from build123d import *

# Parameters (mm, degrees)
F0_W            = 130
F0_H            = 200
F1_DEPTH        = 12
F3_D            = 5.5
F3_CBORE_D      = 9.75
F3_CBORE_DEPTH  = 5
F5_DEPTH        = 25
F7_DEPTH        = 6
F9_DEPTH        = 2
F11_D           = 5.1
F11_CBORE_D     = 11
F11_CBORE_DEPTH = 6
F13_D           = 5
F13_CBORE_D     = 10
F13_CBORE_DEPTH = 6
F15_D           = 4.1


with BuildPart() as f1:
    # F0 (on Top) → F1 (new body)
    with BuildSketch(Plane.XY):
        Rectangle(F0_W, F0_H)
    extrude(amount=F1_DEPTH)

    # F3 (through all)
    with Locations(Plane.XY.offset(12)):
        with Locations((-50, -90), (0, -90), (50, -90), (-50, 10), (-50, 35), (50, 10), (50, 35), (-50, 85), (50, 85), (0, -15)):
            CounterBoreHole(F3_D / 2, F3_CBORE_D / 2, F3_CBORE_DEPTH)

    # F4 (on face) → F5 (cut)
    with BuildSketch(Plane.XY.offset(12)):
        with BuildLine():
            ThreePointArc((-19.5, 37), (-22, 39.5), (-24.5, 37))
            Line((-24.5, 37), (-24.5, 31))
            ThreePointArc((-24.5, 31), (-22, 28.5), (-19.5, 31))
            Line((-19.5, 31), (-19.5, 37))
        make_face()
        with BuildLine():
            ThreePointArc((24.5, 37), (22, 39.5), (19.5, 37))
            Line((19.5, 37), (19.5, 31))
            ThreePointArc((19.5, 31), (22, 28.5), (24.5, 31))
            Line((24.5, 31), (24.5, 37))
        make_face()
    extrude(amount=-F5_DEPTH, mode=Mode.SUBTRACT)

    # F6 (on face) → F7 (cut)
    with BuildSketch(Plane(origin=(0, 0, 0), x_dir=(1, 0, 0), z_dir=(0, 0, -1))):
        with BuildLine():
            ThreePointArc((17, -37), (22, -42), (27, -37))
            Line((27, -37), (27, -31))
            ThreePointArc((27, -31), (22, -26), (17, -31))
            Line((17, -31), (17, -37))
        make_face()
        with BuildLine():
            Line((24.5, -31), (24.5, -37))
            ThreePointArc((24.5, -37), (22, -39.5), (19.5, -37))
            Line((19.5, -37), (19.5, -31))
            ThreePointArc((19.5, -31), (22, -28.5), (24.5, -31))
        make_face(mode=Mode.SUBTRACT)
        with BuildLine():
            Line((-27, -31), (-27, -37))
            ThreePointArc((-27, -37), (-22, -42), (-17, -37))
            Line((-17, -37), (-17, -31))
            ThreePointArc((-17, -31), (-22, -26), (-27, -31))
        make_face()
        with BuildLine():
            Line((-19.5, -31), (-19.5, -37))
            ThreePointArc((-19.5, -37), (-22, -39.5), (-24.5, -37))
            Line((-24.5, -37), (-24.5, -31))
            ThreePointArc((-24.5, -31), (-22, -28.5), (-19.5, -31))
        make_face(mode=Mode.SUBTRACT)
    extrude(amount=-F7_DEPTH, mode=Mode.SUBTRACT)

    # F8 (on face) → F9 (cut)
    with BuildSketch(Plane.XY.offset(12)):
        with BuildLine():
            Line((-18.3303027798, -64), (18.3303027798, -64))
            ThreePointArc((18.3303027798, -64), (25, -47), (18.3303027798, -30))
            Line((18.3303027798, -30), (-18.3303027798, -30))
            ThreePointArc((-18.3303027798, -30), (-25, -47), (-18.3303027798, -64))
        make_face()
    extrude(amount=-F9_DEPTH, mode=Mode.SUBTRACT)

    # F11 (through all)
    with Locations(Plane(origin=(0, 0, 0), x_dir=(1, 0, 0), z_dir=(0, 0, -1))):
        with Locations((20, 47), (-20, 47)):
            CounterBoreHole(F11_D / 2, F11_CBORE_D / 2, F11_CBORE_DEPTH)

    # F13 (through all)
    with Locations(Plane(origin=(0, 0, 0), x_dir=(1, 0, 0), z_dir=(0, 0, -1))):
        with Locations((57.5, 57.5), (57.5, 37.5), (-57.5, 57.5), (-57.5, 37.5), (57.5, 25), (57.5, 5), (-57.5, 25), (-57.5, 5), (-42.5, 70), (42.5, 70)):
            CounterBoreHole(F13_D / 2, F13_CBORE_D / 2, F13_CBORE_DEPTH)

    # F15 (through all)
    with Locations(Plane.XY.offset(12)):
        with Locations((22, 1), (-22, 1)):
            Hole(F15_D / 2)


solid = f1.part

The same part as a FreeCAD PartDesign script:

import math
import FreeCAD as App
import Part
import Sketcher


def add_polygon(sketch, points):
    """Adds a closed chain of lines whose ends are joined by coincident constraints."""
    first, n = sketch.GeometryCount, len(points)
    for a, b in zip(points, points[1:] + points[:1]):
        sketch.addGeometry(Part.LineSegment(App.Vector(*a, 0), App.Vector(*b, 0)), False)
    for i in range(n):
        sketch.addConstraint(Sketcher.Constraint("Coincident", first + i, 2, first + (i + 1) % n, 1))

doc = App.newDocument("Part")
body = doc.addObject("PartDesign::Body", "Body")

# Sketch on XY plane
sketch1 = doc.addObject("Sketcher::SketchObject", "Sketch")
body.addObject(sketch1)
sketch1.AttachmentSupport = (doc.XY_Plane, [""])
sketch1.MapMode = "FlatFace"
add_polygon(sketch1, [(-65, 100), (-65, -100), (65, -100), (65, 100)])  # lines 0-3
sketch1.addConstraint([
    Sketcher.Constraint("Vertical", 0),
    Sketcher.Constraint("Horizontal", 1),
    Sketcher.Constraint("Vertical", 2),
    Sketcher.Constraint("Horizontal", 3),
    Sketcher.Constraint("Symmetric", 0, 2, 2, 2, -1, 1),
    Sketcher.Constraint("DistanceX", 1, 1, 1, 2, 130.0),
    Sketcher.Constraint("DistanceY", 0, 2, 0, 1, 200.0),
])
pad1 = doc.addObject("PartDesign::Pad", "Pad")
body.addObject(pad1)
pad1.Profile = sketch1
pad1.Length = 12

# Sketch on XY plane
sketch2 = doc.addObject("Sketcher::SketchObject", "Sketch001")
body.addObject(sketch2)
sketch2.AttachmentSupport = (doc.XY_Plane, [""])
sketch2.MapMode = "FlatFace"
sketch2.AttachmentOffset = App.Placement(App.Vector(0, 0, 12), App.Rotation())
sketch2.addGeometry([
    Part.Circle(App.Vector(-50, -90, 0), App.Vector(0, 0, 1), 2.8),  # 0
    Part.Circle(App.Vector(0, -90, 0), App.Vector(0, 0, 1), 2.8),  # 1
    Part.Circle(App.Vector(50, -90, 0), App.Vector(0, 0, 1), 2.8),  # 2
    Part.Circle(App.Vector(-50, 10, 0), App.Vector(0, 0, 1), 2.8),  # 3
    Part.Circle(App.Vector(-50, 35, 0), App.Vector(0, 0, 1), 2.8),  # 4
    Part.Circle(App.Vector(50, 10, 0), App.Vector(0, 0, 1), 2.8),  # 5
    Part.Circle(App.Vector(50, 35, 0), App.Vector(0, 0, 1), 2.8),  # 6
    Part.Circle(App.Vector(-50, 85, 0), App.Vector(0, 0, 1), 2.8),  # 7
    Part.Circle(App.Vector(50, 85, 0), App.Vector(0, 0, 1), 2.8),  # 8
    Part.Circle(App.Vector(0, -15, 0), App.Vector(0, 0, 1), 2.8),  # 9
], False)
sketch2.addConstraint([
    Sketcher.Constraint("Equal", 0, 1),
    Sketcher.Constraint("Equal", 1, 2),
    Sketcher.Constraint("Equal", 2, 3),
    Sketcher.Constraint("Equal", 3, 4),
    Sketcher.Constraint("Equal", 4, 5),
    Sketcher.Constraint("Equal", 5, 6),
    Sketcher.Constraint("Equal", 6, 7),
    Sketcher.Constraint("Equal", 7, 8),
    Sketcher.Constraint("Equal", 8, 9),
    Sketcher.Constraint("Symmetric", 0, 3, 2, 3, -2),
    Sketcher.Constraint("Symmetric", 3, 3, 5, 3, -2),
    Sketcher.Constraint("Symmetric", 4, 3, 6, 3, -2),
    Sketcher.Constraint("Symmetric", 7, 3, 8, 3, -2),
    Sketcher.Constraint("PointOnObject", 1, 3, -2),
    Sketcher.Constraint("PointOnObject", 9, 3, -2),
    Sketcher.Constraint("Horizontal", 0, 3, 1, 3),
    Sketcher.Constraint("Vertical", 0, 3, 3, 3),
    Sketcher.Constraint("Vertical", 3, 3, 4, 3),
    Sketcher.Constraint("Vertical", 4, 3, 7, 3),
    Sketcher.Constraint("Diameter", 0, 5.5),
    Sketcher.Constraint("DistanceX", 0, 3, -1, 1, 50.0),
    Sketcher.Constraint("DistanceY", 0, 3, -1, 1, 90.0),
    Sketcher.Constraint("DistanceY", -1, 1, 3, 3, 10.0),
    Sketcher.Constraint("DistanceY", -1, 1, 4, 3, 35.0),
    Sketcher.Constraint("DistanceY", -1, 1, 7, 3, 85.0),
    Sketcher.Constraint("DistanceY", 9, 3, -1, 1, 15.0),
])
doc.recompute()
hole = doc.addObject("PartDesign::Hole", "Hole")
body.addObject(hole)
hole.Profile = sketch2
hole.ThreadType = "None"
hole.Diameter = 5.5
hole.DepthType = "ThroughAll"
hole.HoleCutType = "Counterbore"
hole.HoleCutDiameter = 9.75
hole.HoleCutDepth = 5

# Sketch on XY plane
sketch3 = doc.addObject("Sketcher::SketchObject", "Sketch002")
body.addObject(sketch3)
sketch3.AttachmentSupport = (doc.XY_Plane, [""])
sketch3.MapMode = "FlatFace"
sketch3.AttachmentOffset = App.Placement(App.Vector(0, 0, 12), App.Rotation())
sketch3.addGeometry([
    Part.ArcOfCircle(Part.Circle(App.Vector(-22, 37, 0), App.Vector(0, 0, 1), 2.5), math.radians(0), math.radians(180)),  # 0
    Part.LineSegment(App.Vector(-24.5, 37, 0), App.Vector(-24.5, 31, 0)),  # 1
    Part.ArcOfCircle(Part.Circle(App.Vector(-22, 31, 0), App.Vector(0, 0, 1), 2.5), math.radians(180), math.radians(360)),  # 2
    Part.LineSegment(App.Vector(-19.5, 31, 0), App.Vector(-19.5, 37, 0)),  # 3
    Part.ArcOfCircle(Part.Circle(App.Vector(22, 37, 0), App.Vector(0, 0, 1), 2.5), math.radians(0), math.radians(180)),  # 4
    Part.LineSegment(App.Vector(19.5, 37, 0), App.Vector(19.5, 31, 0)),  # 5
    Part.ArcOfCircle(Part.Circle(App.Vector(22, 31, 0), App.Vector(0, 0, 1), 2.5), math.radians(180), math.radians(360)),  # 6
    Part.LineSegment(App.Vector(24.5, 31, 0), App.Vector(24.5, 37, 0)),  # 7
], False)
sketch3.addConstraint([
    Sketcher.Constraint("Tangent", 0, 2, 1, 1),
    Sketcher.Constraint("Tangent", 1, 2, 2, 1),
    Sketcher.Constraint("Tangent", 2, 2, 3, 1),
    Sketcher.Constraint("Tangent", 3, 2, 0, 1),
    Sketcher.Constraint("Tangent", 4, 2, 5, 1),
    Sketcher.Constraint("Tangent", 5, 2, 6, 1),
    Sketcher.Constraint("Tangent", 6, 2, 7, 1),
    Sketcher.Constraint("Tangent", 7, 2, 4, 1),
    Sketcher.Constraint("Vertical", 1),
    Sketcher.Constraint("Vertical", 3),
    Sketcher.Constraint("Vertical", 5),
    Sketcher.Constraint("Vertical", 7),
    Sketcher.Constraint("Equal", 2, 4),
    Sketcher.Constraint("Symmetric", 0, 3, 4, 3, -2),
    Sketcher.Constraint("Horizontal", 2, 3, 6, 3),
    Sketcher.Constraint("Radius", 0, 2.5),
    Sketcher.Constraint("DistanceY", 1, 2, 1, 1, 6.0),
    Sketcher.Constraint("DistanceX", 0, 3, -1, 1, 22.0),
    Sketcher.Constraint("DistanceY", -1, 1, 0, 3, 37.0),
])
pocket1 = doc.addObject("PartDesign::Pocket", "Pocket")
body.addObject(pocket1)
pocket1.Profile = sketch3
pocket1.Length = 25

# Sketch on XY plane
sketch4 = doc.addObject("Sketcher::SketchObject", "Sketch003")
body.addObject(sketch4)
sketch4.AttachmentSupport = (doc.XY_Plane, [""])
sketch4.MapMode = "FlatFace"
sketch4.addGeometry([
    Part.ArcOfCircle(Part.Circle(App.Vector(22, 37, 0), App.Vector(0, 0, 1), 5), math.radians(0), math.radians(180)),  # 0
    Part.LineSegment(App.Vector(27, 37, 0), App.Vector(27, 31, 0)),  # 1
    Part.ArcOfCircle(Part.Circle(App.Vector(22, 31, 0), App.Vector(0, 0, 1), 5), math.radians(180), math.radians(360)),  # 2
    Part.LineSegment(App.Vector(17, 31, 0), App.Vector(17, 37, 0)),  # 3
    Part.ArcOfCircle(Part.Circle(App.Vector(22, 31, 0), App.Vector(0, 0, 1), 2.5), math.radians(180), math.radians(360)),  # 4
    Part.LineSegment(App.Vector(24.5, 31, 0), App.Vector(24.5, 37, 0)),  # 5
    Part.ArcOfCircle(Part.Circle(App.Vector(22, 37, 0), App.Vector(0, 0, 1), 2.5), math.radians(0), math.radians(180)),  # 6
    Part.LineSegment(App.Vector(19.5, 37, 0), App.Vector(19.5, 31, 0)),  # 7
    Part.LineSegment(App.Vector(-27, 31, 0), App.Vector(-27, 37, 0)),  # 8
    Part.ArcOfCircle(Part.Circle(App.Vector(-22, 37, 0), App.Vector(0, 0, 1), 5), math.radians(0), math.radians(180)),  # 9
    Part.LineSegment(App.Vector(-17, 37, 0), App.Vector(-17, 31, 0)),  # 10
    Part.ArcOfCircle(Part.Circle(App.Vector(-22, 31, 0), App.Vector(0, 0, 1), 5), math.radians(180), math.radians(360)),  # 11
    Part.ArcOfCircle(Part.Circle(App.Vector(-22, 31, 0), App.Vector(0, 0, 1), 2.5), math.radians(180), math.radians(360)),  # 12
    Part.LineSegment(App.Vector(-19.5, 31, 0), App.Vector(-19.5, 37, 0)),  # 13
    Part.ArcOfCircle(Part.Circle(App.Vector(-22, 37, 0), App.Vector(0, 0, 1), 2.5), math.radians(0), math.radians(180)),  # 14
    Part.LineSegment(App.Vector(-24.5, 37, 0), App.Vector(-24.5, 31, 0)),  # 15
], False)
sketch4.addConstraint([
    Sketcher.Constraint("Tangent", 0, 1, 1, 1),
    Sketcher.Constraint("Tangent", 1, 2, 2, 2),
    Sketcher.Constraint("Tangent", 2, 1, 3, 1),
    Sketcher.Constraint("Tangent", 3, 2, 0, 2),
    Sketcher.Constraint("Tangent", 4, 2, 5, 1),
    Sketcher.Constraint("Tangent", 5, 2, 6, 1),
    Sketcher.Constraint("Tangent", 6, 2, 7, 1),
    Sketcher.Constraint("Tangent", 7, 2, 4, 1),
    Sketcher.Constraint("Tangent", 8, 2, 9, 2),
    Sketcher.Constraint("Tangent", 9, 1, 10, 1),
    Sketcher.Constraint("Tangent", 10, 2, 11, 2),
    Sketcher.Constraint("Tangent", 11, 1, 8, 1),
    Sketcher.Constraint("Tangent", 12, 2, 13, 1),
    Sketcher.Constraint("Tangent", 13, 2, 14, 1),
    Sketcher.Constraint("Tangent", 14, 2, 15, 1),
    Sketcher.Constraint("Tangent", 15, 2, 12, 1),
    Sketcher.Constraint("Vertical", 1),
    Sketcher.Constraint("Vertical", 3),
    Sketcher.Constraint("Vertical", 5),
    Sketcher.Constraint("Vertical", 7),
    Sketcher.Constraint("Vertical", 8),
    Sketcher.Constraint("Vertical", 10),
    Sketcher.Constraint("Vertical", 13),
    Sketcher.Constraint("Vertical", 15),
    Sketcher.Constraint("Coincident", 4, 3, 2, 3),
    Sketcher.Constraint("Coincident", 12, 3, 11, 3),
    Sketcher.Constraint("Equal", 2, 9),
    Sketcher.Constraint("Equal", 6, 12),
    Sketcher.Constraint("Symmetric", 0, 3, 9, 3, -2),
    Sketcher.Constraint("Horizontal", 6, 3, 9, 3),
    Sketcher.Constraint("Horizontal", 4, 3, 11, 3),
    Sketcher.Constraint("Horizontal", 6, 3, 14, 3),
    Sketcher.Constraint("Radius", 0, 5.0),
    Sketcher.Constraint("Radius", 4, 2.5),
    Sketcher.Constraint("DistanceY", 1, 2, 1, 1, 6.0),
    Sketcher.Constraint("DistanceX", -1, 1, 0, 3, 22.0),
    Sketcher.Constraint("DistanceY", -1, 1, 0, 3, 37.0),
])
pocket2 = doc.addObject("PartDesign::Pocket", "Pocket001")
body.addObject(pocket2)
pocket2.Profile = sketch4
pocket2.Length = 6
pocket2.Reversed = True

# Sketch on XY plane
sketch5 = doc.addObject("Sketcher::SketchObject", "Sketch004")
body.addObject(sketch5)
sketch5.AttachmentSupport = (doc.XY_Plane, [""])
sketch5.MapMode = "FlatFace"
sketch5.AttachmentOffset = App.Placement(App.Vector(0, 0, 12), App.Rotation())
sketch5.addGeometry([
    Part.LineSegment(App.Vector(-18, -64, 0), App.Vector(18, -64, 0)),
    Part.ArcOfCircle(Part.Circle(App.Vector(0, -47, 0), App.Vector(0, 0, 1), 25), math.radians(-43), math.radians(43)),
    Part.LineSegment(App.Vector(18, -30, 0), App.Vector(-18, -30, 0)),
    Part.ArcOfCircle(Part.Circle(App.Vector(0, -47, 0), App.Vector(0, 0, 1), 25), math.radians(137), math.radians(223)),
], False)
sketch5.addConstraint([
    Sketcher.Constraint("Coincident", 0, 2, 1, 1),
    Sketcher.Constraint("Coincident", 1, 2, 2, 1),
    Sketcher.Constraint("Coincident", 2, 2, 3, 1),
    Sketcher.Constraint("Coincident", 3, 2, 0, 1),
    Sketcher.Constraint("Horizontal", 0),
    Sketcher.Constraint("Horizontal", 2),
    Sketcher.Constraint("Coincident", 3, 3, 1, 3),
    Sketcher.Constraint("Equal", 1, 3),
    Sketcher.Constraint("PointOnObject", 1, 3, -2),
    Sketcher.Constraint("Vertical", 0, 2, 1, 2),
    Sketcher.Constraint("Radius", 1, 25.0),
    Sketcher.Constraint("DistanceY", 1, 3, -1, 1, 47.0),
    Sketcher.Constraint("DistanceY", 0, 2, -1, 1, 64.0),
])
pocket3 = doc.addObject("PartDesign::Pocket", "Pocket002")
body.addObject(pocket3)
pocket3.Profile = sketch5
pocket3.Length = 2

# Sketch on XY plane
sketch6 = doc.addObject("Sketcher::SketchObject", "Sketch005")
body.addObject(sketch6)
sketch6.AttachmentSupport = (doc.XY_Plane, [""])
sketch6.MapMode = "FlatFace"
sketch6.addGeometry([
    Part.Circle(App.Vector(20, -47, 0), App.Vector(0, 0, 1), 2.5),
    Part.Circle(App.Vector(-20, -47, 0), App.Vector(0, 0, 1), 2.5),
], False)
sketch6.addConstraint([
    Sketcher.Constraint("Equal", 0, 1),
    Sketcher.Constraint("Symmetric", 0, 3, 1, 3, -2),
    Sketcher.Constraint("Diameter", 0, 5.1),
    Sketcher.Constraint("DistanceX", -1, 1, 0, 3, 20.0),
    Sketcher.Constraint("DistanceY", 0, 3, -1, 1, 47.0),
])
doc.recompute()
hole2 = doc.addObject("PartDesign::Hole", "Hole001")
body.addObject(hole2)
hole2.Profile = sketch6
hole2.ThreadType = "None"
hole2.Diameter = 5.1
hole2.DepthType = "ThroughAll"
hole2.HoleCutType = "Counterbore"
hole2.HoleCutDiameter = 11
hole2.HoleCutDepth = 6
hole2.Reversed = True

# Sketch on XY plane
sketch7 = doc.addObject("Sketcher::SketchObject", "Sketch006")
body.addObject(sketch7)
sketch7.AttachmentSupport = (doc.XY_Plane, [""])
sketch7.MapMode = "FlatFace"
sketch7.addGeometry([
    Part.Circle(App.Vector(57.5, -57.5, 0), App.Vector(0, 0, 1), 2.5),  # 0
    Part.Circle(App.Vector(57.5, -37.5, 0), App.Vector(0, 0, 1), 2.5),  # 1
    Part.Circle(App.Vector(-57.5, -57.5, 0), App.Vector(0, 0, 1), 2.5),  # 2
    Part.Circle(App.Vector(-57.5, -37.5, 0), App.Vector(0, 0, 1), 2.5),  # 3
    Part.Circle(App.Vector(57.5, -25, 0), App.Vector(0, 0, 1), 2.5),  # 4
    Part.Circle(App.Vector(57.5, -5, 0), App.Vector(0, 0, 1), 2.5),  # 5
    Part.Circle(App.Vector(-57.5, -25, 0), App.Vector(0, 0, 1), 2.5),  # 6
    Part.Circle(App.Vector(-57.5, -5, 0), App.Vector(0, 0, 1), 2.5),  # 7
    Part.Circle(App.Vector(-42.5, -70, 0), App.Vector(0, 0, 1), 2.5),  # 8
    Part.Circle(App.Vector(42.5, -70, 0), App.Vector(0, 0, 1), 2.5),  # 9
], False)
sketch7.addConstraint([
    Sketcher.Constraint("Equal", 0, 1),
    Sketcher.Constraint("Equal", 1, 2),
    Sketcher.Constraint("Equal", 2, 3),
    Sketcher.Constraint("Equal", 3, 4),
    Sketcher.Constraint("Equal", 4, 5),
    Sketcher.Constraint("Equal", 5, 6),
    Sketcher.Constraint("Equal", 6, 7),
    Sketcher.Constraint("Equal", 7, 8),
    Sketcher.Constraint("Equal", 8, 9),
    Sketcher.Constraint("Symmetric", 0, 3, 2, 3, -2),
    Sketcher.Constraint("Symmetric", 1, 3, 3, 3, -2),
    Sketcher.Constraint("Symmetric", 4, 3, 6, 3, -2),
    Sketcher.Constraint("Symmetric", 5, 3, 7, 3, -2),
    Sketcher.Constraint("Symmetric", 8, 3, 9, 3, -2),
    Sketcher.Constraint("Vertical", 0, 3, 1, 3),
    Sketcher.Constraint("Vertical", 1, 3, 4, 3),
    Sketcher.Constraint("Vertical", 4, 3, 5, 3),
    Sketcher.Constraint("Diameter", 0, 5.0),
    Sketcher.Constraint("DistanceY", 4, 3, -1, 1, 25.0),
    Sketcher.Constraint("DistanceY", 5, 3, -1, 1, 5.0),
    Sketcher.Constraint("DistanceY", 8, 3, -1, 1, 70.0),
    Sketcher.Constraint("DistanceY", 0, 3, 1, 3, 20.0),
    Sketcher.Constraint("DistanceX", 2, 3, 0, 3, 115.0),
    Sketcher.Constraint("DistanceX", 2, 3, 8, 3, 15.0),
    Sketcher.Constraint("DistanceY", 0, 3, -1, 1, 57.5),
])
doc.recompute()
hole3 = doc.addObject("PartDesign::Hole", "Hole002")
body.addObject(hole3)
hole3.Profile = sketch7
hole3.ThreadType = "None"
hole3.Diameter = 5
hole3.DepthType = "ThroughAll"
hole3.HoleCutType = "Counterbore"
hole3.HoleCutDiameter = 10
hole3.HoleCutDepth = 6
hole3.Reversed = True

# Sketch on XY plane
sketch8 = doc.addObject("Sketcher::SketchObject", "Sketch007")
body.addObject(sketch8)
sketch8.AttachmentSupport = (doc.XY_Plane, [""])
sketch8.MapMode = "FlatFace"
sketch8.AttachmentOffset = App.Placement(App.Vector(0, 0, 12), App.Rotation())
sketch8.addGeometry([
    Part.Circle(App.Vector(22, 1, 0), App.Vector(0, 0, 1), 2),
    Part.Circle(App.Vector(-22, 1, 0), App.Vector(0, 0, 1), 2),
], False)
sketch8.addConstraint([
    Sketcher.Constraint("Equal", 0, 1),
    Sketcher.Constraint("Symmetric", 0, 3, 1, 3, -2),
    Sketcher.Constraint("Diameter", 0, 4.1),
    Sketcher.Constraint("DistanceX", -1, 1, 0, 3, 22.0),
    Sketcher.Constraint("DistanceY", -1, 1, 0, 3, 1.0),
])
doc.recompute()
hole4 = doc.addObject("PartDesign::Hole", "Hole003")
body.addObject(hole4)
hole4.Profile = sketch8
hole4.ThreadType = "None"
hole4.Diameter = 4.1
hole4.DepthType = "ThroughAll"

doc.recompute()
